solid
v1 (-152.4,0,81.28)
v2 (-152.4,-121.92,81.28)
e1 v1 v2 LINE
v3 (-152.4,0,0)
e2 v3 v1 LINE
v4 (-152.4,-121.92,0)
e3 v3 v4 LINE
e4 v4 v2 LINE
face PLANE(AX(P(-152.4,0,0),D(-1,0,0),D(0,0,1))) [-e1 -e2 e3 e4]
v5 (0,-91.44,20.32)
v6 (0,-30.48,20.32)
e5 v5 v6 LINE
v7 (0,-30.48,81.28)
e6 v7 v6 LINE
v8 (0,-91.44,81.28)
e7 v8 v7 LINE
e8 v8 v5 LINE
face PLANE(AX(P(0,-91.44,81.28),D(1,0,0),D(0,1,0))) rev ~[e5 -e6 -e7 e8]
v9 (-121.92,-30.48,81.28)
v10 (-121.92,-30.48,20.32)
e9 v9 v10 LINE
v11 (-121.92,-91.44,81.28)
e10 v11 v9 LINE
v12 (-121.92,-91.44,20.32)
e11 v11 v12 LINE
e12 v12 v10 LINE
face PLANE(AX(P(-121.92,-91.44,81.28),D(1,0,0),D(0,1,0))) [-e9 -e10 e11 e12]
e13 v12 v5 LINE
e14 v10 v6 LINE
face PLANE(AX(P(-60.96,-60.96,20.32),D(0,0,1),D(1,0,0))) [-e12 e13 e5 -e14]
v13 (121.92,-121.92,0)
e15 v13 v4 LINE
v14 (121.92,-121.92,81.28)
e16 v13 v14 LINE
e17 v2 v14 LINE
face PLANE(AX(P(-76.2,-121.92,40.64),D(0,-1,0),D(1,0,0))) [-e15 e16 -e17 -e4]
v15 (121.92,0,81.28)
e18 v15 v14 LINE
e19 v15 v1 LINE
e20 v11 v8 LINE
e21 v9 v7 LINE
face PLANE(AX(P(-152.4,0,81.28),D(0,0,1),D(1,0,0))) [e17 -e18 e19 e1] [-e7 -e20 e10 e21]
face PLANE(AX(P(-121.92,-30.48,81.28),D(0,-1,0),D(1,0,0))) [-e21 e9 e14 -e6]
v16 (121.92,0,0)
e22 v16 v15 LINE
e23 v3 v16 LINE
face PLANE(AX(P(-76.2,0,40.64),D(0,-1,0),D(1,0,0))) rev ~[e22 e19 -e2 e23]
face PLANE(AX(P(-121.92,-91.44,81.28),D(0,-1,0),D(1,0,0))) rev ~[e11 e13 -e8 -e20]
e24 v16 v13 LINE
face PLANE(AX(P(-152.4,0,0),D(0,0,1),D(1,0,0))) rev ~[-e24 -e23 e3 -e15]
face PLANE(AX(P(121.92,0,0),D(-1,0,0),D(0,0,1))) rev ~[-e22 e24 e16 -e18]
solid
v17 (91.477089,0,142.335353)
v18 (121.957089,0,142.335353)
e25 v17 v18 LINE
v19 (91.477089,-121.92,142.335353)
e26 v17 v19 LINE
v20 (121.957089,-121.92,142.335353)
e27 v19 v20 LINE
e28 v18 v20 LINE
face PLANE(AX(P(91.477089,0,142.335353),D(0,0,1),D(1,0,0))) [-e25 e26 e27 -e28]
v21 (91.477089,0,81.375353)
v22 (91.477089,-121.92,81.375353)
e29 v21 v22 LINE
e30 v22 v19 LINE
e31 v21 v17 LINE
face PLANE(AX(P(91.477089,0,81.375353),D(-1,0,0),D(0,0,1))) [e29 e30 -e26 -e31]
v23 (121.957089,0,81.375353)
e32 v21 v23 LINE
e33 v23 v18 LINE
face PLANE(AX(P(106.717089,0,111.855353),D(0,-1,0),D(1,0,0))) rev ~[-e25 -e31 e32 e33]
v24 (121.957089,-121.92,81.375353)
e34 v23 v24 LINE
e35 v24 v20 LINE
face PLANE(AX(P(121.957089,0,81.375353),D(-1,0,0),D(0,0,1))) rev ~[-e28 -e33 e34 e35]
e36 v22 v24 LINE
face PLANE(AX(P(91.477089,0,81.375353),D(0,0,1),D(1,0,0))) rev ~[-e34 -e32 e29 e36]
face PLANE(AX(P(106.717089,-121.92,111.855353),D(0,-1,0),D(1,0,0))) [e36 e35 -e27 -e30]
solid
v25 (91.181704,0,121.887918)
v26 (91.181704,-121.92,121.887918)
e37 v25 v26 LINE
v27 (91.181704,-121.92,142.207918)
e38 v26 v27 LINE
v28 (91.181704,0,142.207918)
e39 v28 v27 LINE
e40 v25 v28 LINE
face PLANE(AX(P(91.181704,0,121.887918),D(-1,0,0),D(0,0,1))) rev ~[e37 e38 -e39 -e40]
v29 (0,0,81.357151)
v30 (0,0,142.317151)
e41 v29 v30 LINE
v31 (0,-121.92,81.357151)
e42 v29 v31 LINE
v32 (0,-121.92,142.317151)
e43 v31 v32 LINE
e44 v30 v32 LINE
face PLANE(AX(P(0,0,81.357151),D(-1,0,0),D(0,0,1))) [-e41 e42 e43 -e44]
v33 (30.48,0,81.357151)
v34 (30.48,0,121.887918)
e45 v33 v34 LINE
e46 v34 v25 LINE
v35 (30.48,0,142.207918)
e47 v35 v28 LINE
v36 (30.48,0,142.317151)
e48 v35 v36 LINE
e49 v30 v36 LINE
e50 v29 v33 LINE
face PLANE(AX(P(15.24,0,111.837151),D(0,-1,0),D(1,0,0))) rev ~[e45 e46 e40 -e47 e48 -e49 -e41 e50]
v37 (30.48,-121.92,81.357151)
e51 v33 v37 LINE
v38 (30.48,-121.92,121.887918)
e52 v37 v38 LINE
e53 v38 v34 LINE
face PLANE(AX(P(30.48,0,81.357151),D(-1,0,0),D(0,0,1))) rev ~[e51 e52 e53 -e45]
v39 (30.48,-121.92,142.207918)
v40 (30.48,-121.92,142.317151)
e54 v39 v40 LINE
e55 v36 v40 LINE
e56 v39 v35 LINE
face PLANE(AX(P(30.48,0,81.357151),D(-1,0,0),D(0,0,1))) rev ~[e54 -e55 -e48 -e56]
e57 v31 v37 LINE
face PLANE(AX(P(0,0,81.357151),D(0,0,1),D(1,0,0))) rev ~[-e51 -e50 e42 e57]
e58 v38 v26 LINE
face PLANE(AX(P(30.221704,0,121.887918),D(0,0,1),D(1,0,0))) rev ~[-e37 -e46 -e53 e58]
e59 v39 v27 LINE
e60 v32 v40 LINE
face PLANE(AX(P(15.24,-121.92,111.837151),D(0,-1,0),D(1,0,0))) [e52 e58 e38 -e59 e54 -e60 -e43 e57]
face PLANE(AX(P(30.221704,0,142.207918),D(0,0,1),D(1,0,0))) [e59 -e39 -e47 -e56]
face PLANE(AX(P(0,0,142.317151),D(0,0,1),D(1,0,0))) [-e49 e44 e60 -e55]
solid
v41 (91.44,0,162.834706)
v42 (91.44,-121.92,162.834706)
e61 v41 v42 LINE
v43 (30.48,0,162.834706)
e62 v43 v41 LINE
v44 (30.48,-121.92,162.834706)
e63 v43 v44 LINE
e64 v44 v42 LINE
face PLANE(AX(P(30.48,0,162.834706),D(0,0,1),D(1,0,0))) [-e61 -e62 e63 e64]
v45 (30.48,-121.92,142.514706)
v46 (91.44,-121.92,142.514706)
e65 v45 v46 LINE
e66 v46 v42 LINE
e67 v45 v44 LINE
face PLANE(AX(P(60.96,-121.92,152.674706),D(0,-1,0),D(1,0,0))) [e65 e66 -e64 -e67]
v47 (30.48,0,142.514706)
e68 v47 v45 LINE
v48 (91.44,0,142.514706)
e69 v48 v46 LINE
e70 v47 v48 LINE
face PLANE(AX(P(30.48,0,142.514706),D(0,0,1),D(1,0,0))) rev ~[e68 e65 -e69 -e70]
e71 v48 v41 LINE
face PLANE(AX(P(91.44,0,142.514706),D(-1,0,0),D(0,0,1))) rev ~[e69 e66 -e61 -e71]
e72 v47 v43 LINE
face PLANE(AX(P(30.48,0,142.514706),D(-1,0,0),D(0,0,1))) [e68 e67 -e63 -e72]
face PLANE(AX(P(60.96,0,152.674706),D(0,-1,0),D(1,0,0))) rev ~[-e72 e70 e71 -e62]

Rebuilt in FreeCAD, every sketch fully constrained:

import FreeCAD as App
import Part
import Sketcher
Q = App.Units.Quantity

doc = App.newDocument("Part")
body = doc.addObject("PartDesign::Body", "Body")

# Sketch on XZ plane
sketch1 = body.newObject("Sketcher::SketchObject", "Sketch")
sketch1.AttachmentSupport = (doc.getObject("XZ_Plane"), [""])
sketch1.MapMode = "FlatFace"
sketch1.addGeometry(Part.LineSegment(App.Vector(0, 81, 0), App.Vector(0, 0, 0)), False)
sketch1.addGeometry(Part.LineSegment(App.Vector(0, 0, 0), App.Vector(122, 0, 0)), False)
sketch1.addGeometry(Part.LineSegment(App.Vector(122, 0, 0), App.Vector(122, 81, 0)), False)
sketch1.addGeometry(Part.LineSegment(App.Vector(122, 81, 0), App.Vector(0, 81, 0)), False)
sketch1.addConstraint(Sketcher.Constraint("Coincident", 0, 2, 1, 1))
sketch1.addConstraint(Sketcher.Constraint("Coincident", 1, 2, 2, 1))
sketch1.addConstraint(Sketcher.Constraint("Coincident", 2, 2, 3, 1))
sketch1.addConstraint(Sketcher.Constraint("Coincident", 3, 2, 0, 1))
sketch1.addConstraint(Sketcher.Constraint("Vertical", 0))
sketch1.addConstraint(Sketcher.Constraint("Horizontal", 1))
sketch1.addConstraint(Sketcher.Constraint("Vertical", 2))
sketch1.addConstraint(Sketcher.Constraint("Horizontal", 3))
sketch1.addConstraint(Sketcher.Constraint("Coincident", 0, 2, -1, 1))
sketch1.addConstraint(Sketcher.Constraint("DistanceX", 1, 1, 1, 2, Q("4.8 in")))
sketch1.addConstraint(Sketcher.Constraint("DistanceY", 0, 2, 0, 1, Q("3.2 in")))
pad1 = body.newObject("PartDesign::Pad", "Pad")
pad1.Profile = sketch1
pad1.Length = Q("4.8 in")

# Sketch on XZ plane
sketch2 = body.newObject("Sketcher::SketchObject", "Sketch001")
sketch2.AttachmentSupport = (doc.getObject("XZ_Plane"), [""])
sketch2.MapMode = "FlatFace"
sketch2.addGeometry(Part.LineSegment(App.Vector(-152, 81, 0), App.Vector(-152, 0, 0)), False)
sketch2.addGeometry(Part.LineSegment(App.Vector(-152, 0, 0), App.Vector(0, 0, 0)), False)
sketch2.addGeometry(Part.LineSegment(App.Vector(0, 0, 0), App.Vector(0, 81, 0)), False)
sketch2.addGeometry(Part.LineSegment(App.Vector(0, 81, 0), App.Vector(-152, 81, 0)), False)
sketch2.addConstraint(Sketcher.Constraint("Coincident", 0, 2, 1, 1))
sketch2.addConstraint(Sketcher.Constraint("Coincident", 1, 2, 2, 1))
sketch2.addConstraint(Sketcher.Constraint("Coincident", 2, 2, 3, 1))
sketch2.addConstraint(Sketcher.Constraint("Coincident", 3, 2, 0, 1))
sketch2.addConstraint(Sketcher.Constraint("Vertical", 0))
sketch2.addConstraint(Sketcher.Constraint("Horizontal", 1))
sketch2.addConstraint(Sketcher.Constraint("Vertical", 2))
sketch2.addConstraint(Sketcher.Constraint("Horizontal", 3))
sketch2.addConstraint(Sketcher.Constraint("Coincident", 1, 2, -1, 1))
sketch2.addConstraint(Sketcher.Constraint("DistanceX", 1, 1, 1, 2, Q("6 in")))
sketch2.addConstraint(Sketcher.Constraint("DistanceY", 0, 2, 0, 1, Q("3.2 in")))
pad2 = body.newObject("PartDesign::Pad", "Pad001")
pad2.Profile = sketch2
pad2.Length = Q("4.8 in")

# Sketch on XY plane
sketch3 = body.newObject("Sketcher::SketchObject", "Sketch002")
sketch3.AttachmentSupport = (doc.getObject("XY_Plane"), [""])
sketch3.MapMode = "FlatFace"
sketch3.AttachmentOffset = App.Placement(App.Vector(0, 0, 3.2 * 25.4), App.Rotation())
sketch3.addGeometry(Part.LineSegment(App.Vector(-122, -30, 0), App.Vector(-122, -91, 0)), False)
sketch3.addGeometry(Part.LineSegment(App.Vector(-122, -91, 0), App.Vector(0, -91, 0)), False)
sketch3.addGeometry(Part.LineSegment(App.Vector(0, -91, 0), App.Vector(0, -30, 0)), False)
sketch3.addGeometry(Part.LineSegment(App.Vector(0, -30, 0), App.Vector(-122, -30, 0)), False)
sketch3.addConstraint(Sketcher.Constraint("Coincident", 0, 2, 1, 1))
sketch3.addConstraint(Sketcher.Constraint("Coincident", 1, 2, 2, 1))
sketch3.addConstraint(Sketcher.Constraint("Coincident", 2, 2, 3, 1))
sketch3.addConstraint(Sketcher.Constraint("Coincident", 3, 2, 0, 1))
sketch3.addConstraint(Sketcher.Constraint("Vertical", 0))
sketch3.addConstraint(Sketcher.Constraint("Horizontal", 1))
sketch3.addConstraint(Sketcher.Constraint("Vertical", 2))
sketch3.addConstraint(Sketcher.Constraint("Horizontal", 3))
sketch3.addConstraint(Sketcher.Constraint("PointOnObject", 1, 2, -2))
sketch3.addConstraint(Sketcher.Constraint("DistanceX", 1, 1, 1, 2, Q("4.8 in")))
sketch3.addConstraint(Sketcher.Constraint("DistanceY", 0, 2, 0, 1, Q("2.4 in")))
sketch3.addConstraint(Sketcher.Constraint("DistanceY", 0, 2, -1, 1, Q("3.6 in")))
pocket1 = body.newObject("PartDesign::Pocket", "Pocket")
pocket1.Profile = sketch3
pocket1.Length = Q("2.4 in")
body2 = doc.addObject("PartDesign::Body", "Body001")
body2.AllowCompound = True

# Sketch on XZ plane
sketch4 = body2.newObject("Sketcher::SketchObject", "Sketch003")
sketch4.AttachmentSupport = (doc.getObject("XZ_Plane001"), [""])
sketch4.MapMode = "FlatFace"
sketch4.addGeometry(Part.LineSegment(App.Vector(0, 142, 0), App.Vector(0, 81, 0)), False)
sketch4.addGeometry(Part.LineSegment(App.Vector(0, 81, 0), App.Vector(30, 81, 0)), False)
sketch4.addGeometry(Part.LineSegment(App.Vector(30, 81, 0), App.Vector(30, 142, 0)), False)
sketch4.addGeometry(Part.LineSegment(App.Vector(30, 142, 0), App.Vector(0, 142, 0)), False)
sketch4.addConstraint(Sketcher.Constraint("Coincident", 0, 2, 1, 1))
sketch4.addConstraint(Sketcher.Constraint("Coincident", 1, 2, 2, 1))
sketch4.addConstraint(Sketcher.Constraint("Coincident", 2, 2, 3, 1))
sketch4.addConstraint(Sketcher.Constraint("Coincident", 3, 2, 0, 1))
sketch4.addConstraint(Sketcher.Constraint("Vertical", 0))
sketch4.addConstraint(Sketcher.Constraint("Horizontal", 1))
sketch4.addConstraint(Sketcher.Constraint("Vertical", 2))
sketch4.addConstraint(Sketcher.Constraint("Horizontal", 3))
sketch4.addConstraint(Sketcher.Constraint("PointOnObject", 0, 2, -2))
sketch4.addConstraint(Sketcher.Constraint("DistanceX", 1, 1, 1, 2, Q("1.2 in")))
sketch4.addConstraint(Sketcher.Constraint("DistanceY", 0, 2, 0, 1, Q("2.4 in")))
sketch4.addConstraint(Sketcher.Constraint("DistanceY", -1, 1, 0, 2, Q("81.357151 mm")))
pad3 = body2.newObject("PartDesign::Pad", "Pad002")
pad3.Profile = sketch4
pad3.Length = Q("4.8 in")

# Sketch on XZ plane
sketch5 = body2.newObject("Sketcher::SketchObject", "Sketch004")
sketch5.AttachmentSupport = (doc.getObject("XZ_Plane001"), [""])
sketch5.MapMode = "FlatFace"
sketch5.addGeometry(Part.LineSegment(App.Vector(30, 142, 0), App.Vector(30, 122, 0)), False)
sketch5.addGeometry(Part.LineSegment(App.Vector(30, 122, 0), App.Vector(91, 122, 0)), False)
sketch5.addGeometry(Part.LineSegment(App.Vector(91, 122, 0), App.Vector(91, 142, 0)), False)
sketch5.addGeometry(Part.LineSegment(App.Vector(91, 142, 0), App.Vector(30, 142, 0)), False)
sketch5.addGeometry(Part.LineSegment(App.Vector(91, 142, 0), App.Vector(91, 81, 0)), False)
sketch5.addGeometry(Part.LineSegment(App.Vector(91, 81, 0), App.Vector(122, 81, 0)), False)
sketch5.addGeometry(Part.LineSegment(App.Vector(122, 81, 0), App.Vector(122, 142, 0)), False)
sketch5.addGeometry(Part.LineSegment(App.Vector(122, 142, 0), App.Vector(91, 142, 0)), False)
sketch5.addConstraint(Sketcher.Constraint("Coincident", 0, 2, 1, 1))
sketch5.addConstraint(Sketcher.Constraint("Coincident", 1, 2, 2, 1))
sketch5.addConstraint(Sketcher.Constraint("Coincident", 2, 2, 3, 1))
sketch5.addConstraint(Sketcher.Constraint("Coincident", 3, 2, 0, 1))
sketch5.addConstraint(Sketcher.Constraint("Coincident", 4, 2, 5, 1))
sketch5.addConstraint(Sketcher.Constraint("Coincident", 5, 2, 6, 1))
sketch5.addConstraint(Sketcher.Constraint("Coincident", 6, 2, 7, 1))
sketch5.addConstraint(Sketcher.Constraint("Coincident", 7, 2, 4, 1))
sketch5.addConstraint(Sketcher.Constraint("Vertical", 0))
sketch5.addConstraint(Sketcher.Constraint("Horizontal", 1))
sketch5.addConstraint(Sketcher.Constraint("Vertical", 2))
sketch5.addConstraint(Sketcher.Constraint("Horizontal", 3))
sketch5.addConstraint(Sketcher.Constraint("Vertical", 4))
sketch5.addConstraint(Sketcher.Constraint("Horizontal", 5))
sketch5.addConstraint(Sketcher.Constraint("Vertical", 6))
sketch5.addConstraint(Sketcher.Constraint("Horizontal", 7))
sketch5.addConstraint(Sketcher.Constraint("Equal", 3, 4))
sketch5.addConstraint(Sketcher.Constraint("DistanceX", 1, 1, 1, 2, Q("2.4 in")))
sketch5.addConstraint(Sketcher.Constraint("DistanceX", 5, 1, 5, 2, Q("1.2 in")))
sketch5.addConstraint(Sketcher.Constraint("DistanceY", 0, 2, 0, 1, Q("0.8 in")))
sketch5.addConstraint(Sketcher.Constraint("DistanceY", -1, 1, 0, 2, Q("121.887918 mm")))
sketch5.addConstraint(Sketcher.Constraint("DistanceX", -1, 1, 4, 2, Q("91.477089 mm")))
sketch5.addConstraint(Sketcher.Constraint("DistanceX", -1, 1, 0, 2, Q("30.221704 mm")))
sketch5.addConstraint(Sketcher.Constraint("DistanceY", -1, 1, 4, 2, Q("81.375353 mm")))
pad4 = body2.newObject("PartDesign::Pad", "Pad003")
pad4.Profile = sketch5
pad4.Length = Q("4.8 in")
body3 = doc.addObject("PartDesign::Body", "Body002")

# Sketch on XZ plane
sketch6 = body3.newObject("Sketcher::SketchObject", "Sketch005")
sketch6.AttachmentSupport = (doc.getObject("XZ_Plane002"), [""])
sketch6.MapMode = "FlatFace"
sketch6.addGeometry(Part.LineSegment(App.Vector(30, 163, 0), App.Vector(30, 143, 0)), False)
sketch6.addGeometry(Part.LineSegment(App.Vector(30, 143, 0), App.Vector(91, 143, 0)), False)
sketch6.addGeometry(Part.LineSegment(App.Vector(91, 143, 0), App.Vector(91, 163, 0)), False)
sketch6.addGeometry(Part.LineSegment(App.Vector(91, 163, 0), App.Vector(30, 163, 0)), False)
sketch6.addConstraint(Sketcher.Constraint("Coincident", 0, 2, 1, 1))
sketch6.addConstraint(Sketcher.Constraint("Coincident", 1, 2, 2, 1))
sketch6.addConstraint(Sketcher.Constraint("Coincident", 2, 2, 3, 1))
sketch6.addConstraint(Sketcher.Constraint("Coincident", 3, 2, 0, 1))
sketch6.addConstraint(Sketcher.Constraint("Vertical", 0))
sketch6.addConstraint(Sketcher.Constraint("Horizontal", 1))
sketch6.addConstraint(Sketcher.Constraint("Vertical", 2))
sketch6.addConstraint(Sketcher.Constraint("Horizontal", 3))
sketch6.addConstraint(Sketcher.Constraint("DistanceX", 1, 1, 1, 2, Q("2.4 in")))
sketch6.addConstraint(Sketcher.Constraint("DistanceY", 0, 2, 0, 1, Q("0.8 in")))
sketch6.addConstraint(Sketcher.Constraint("DistanceX", -1, 1, 0, 2, Q("1.2 in")))
sketch6.addConstraint(Sketcher.Constraint("DistanceY", -1, 1, 0, 2, Q("142.514706 mm")))
pad5 = body3.newObject("PartDesign::Pad", "Pad004")
pad5.Profile = sketch6
pad5.Length = Q("4.8 in")

doc.recompute()
